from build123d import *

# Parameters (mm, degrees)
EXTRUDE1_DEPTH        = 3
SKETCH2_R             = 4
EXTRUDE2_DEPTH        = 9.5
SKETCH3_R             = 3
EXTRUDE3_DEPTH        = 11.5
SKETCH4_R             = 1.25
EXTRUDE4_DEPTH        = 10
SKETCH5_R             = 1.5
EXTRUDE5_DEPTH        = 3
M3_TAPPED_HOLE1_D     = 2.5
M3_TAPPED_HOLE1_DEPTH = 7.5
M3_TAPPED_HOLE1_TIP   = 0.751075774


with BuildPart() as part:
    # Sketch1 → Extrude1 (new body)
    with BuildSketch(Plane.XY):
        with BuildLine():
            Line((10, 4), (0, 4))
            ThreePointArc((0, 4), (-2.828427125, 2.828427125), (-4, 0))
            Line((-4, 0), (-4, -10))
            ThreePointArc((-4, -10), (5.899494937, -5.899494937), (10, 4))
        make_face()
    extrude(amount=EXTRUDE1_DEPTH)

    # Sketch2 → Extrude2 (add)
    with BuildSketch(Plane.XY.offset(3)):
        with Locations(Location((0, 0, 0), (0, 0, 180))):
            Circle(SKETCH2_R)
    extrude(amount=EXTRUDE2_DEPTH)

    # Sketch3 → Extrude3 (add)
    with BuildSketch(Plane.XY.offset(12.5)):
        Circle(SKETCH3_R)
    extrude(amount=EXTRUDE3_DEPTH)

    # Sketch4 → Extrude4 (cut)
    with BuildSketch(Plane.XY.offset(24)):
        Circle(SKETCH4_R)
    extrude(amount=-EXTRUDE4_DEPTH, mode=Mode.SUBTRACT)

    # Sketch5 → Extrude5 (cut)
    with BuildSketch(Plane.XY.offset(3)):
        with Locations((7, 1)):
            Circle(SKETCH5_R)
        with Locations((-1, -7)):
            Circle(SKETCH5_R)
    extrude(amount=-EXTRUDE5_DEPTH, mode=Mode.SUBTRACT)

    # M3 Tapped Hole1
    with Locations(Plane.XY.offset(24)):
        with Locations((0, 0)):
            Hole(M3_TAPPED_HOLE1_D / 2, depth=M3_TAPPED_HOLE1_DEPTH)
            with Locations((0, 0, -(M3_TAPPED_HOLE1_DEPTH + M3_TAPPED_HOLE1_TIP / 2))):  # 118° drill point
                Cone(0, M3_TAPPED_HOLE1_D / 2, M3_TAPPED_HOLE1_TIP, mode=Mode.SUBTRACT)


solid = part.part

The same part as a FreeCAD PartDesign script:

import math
import FreeCAD as App
import Part
import Sketcher
from FreeCAD import Vector

doc = App.newDocument("Part")
body = doc.addObject("PartDesign::Body", "Body")

sketch1 = doc.addObject("Sketcher::SketchObject", "Sketch")
body.addObject(sketch1)
sketch1.AttachmentSupport = (doc.XY_Plane, [""])
sketch1.MapMode = "FlatFace"
sketch1.addGeometry([
    Part.LineSegment(Vector(10, 4, 0), Vector(0, 4, 0)),
    Part.ArcOfCircle(Part.Circle(Vector(0, 0, 0), Vector(0, 0, 1), 4), math.radians(90), math.radians(180)),
    Part.LineSegment(Vector(-4, 0, 0), Vector(-4, -10, 0)),
    Part.ArcOfCircle(Part.Circle(Vector(-4, 4, 0), Vector(0, 0, 1), 14), math.radians(-90), math.radians(0)),
], False)
sketch1.addConstraint([
    Sketcher.Constraint("Tangent", 0, 2, 1, 1),
    Sketcher.Constraint("Tangent", 1, 2, 2, 1),
    Sketcher.Constraint("Coincident", 2, 2, 3, 1),
    Sketcher.Constraint("Coincident", 3, 2, 0, 1),
    Sketcher.Constraint("Horizontal", 0),
    Sketcher.Constraint("Vertical", 2),
    Sketcher.Constraint("Coincident", 1, 3, -1, 1),
    Sketcher.Constraint("Horizontal", 3, 3, 0, 2),
    Sketcher.Constraint("Vertical", 3, 3, 1, 2),
    Sketcher.Constraint("Radius", 1, 4.0),
    Sketcher.Constraint("Radius", 3, 14.0),
])
pad1 = doc.addObject("PartDesign::Pad", "Pad")
body.addObject(pad1)
pad1.Profile = sketch1
pad1.Length = 3

sketch2 = doc.addObject("Sketcher::SketchObject", "Sketch001")
body.addObject(sketch2)
sketch2.AttachmentSupport = (doc.XY_Plane, [""])
sketch2.MapMode = "FlatFace"
sketch2.AttachmentOffset = App.Placement(Vector(0, 0, 3), App.Rotation())
sketch2.addGeometry(Part.Circle(Vector(0, 0, 0), Vector(0, 0, 1), 4), False)
sketch2.addConstraint([
    Sketcher.Constraint("Coincident", 0, 3, -1, 1),
    Sketcher.Constraint("Diameter", 0, 8.0),
])
pad2 = doc.addObject("PartDesign::Pad", "Pad001")
body.addObject(pad2)
pad2.Profile = sketch2
pad2.Length = 9.5

sketch3 = doc.addObject("Sketcher::SketchObject", "Sketch002")
body.addObject(sketch3)
sketch3.AttachmentSupport = (doc.XY_Plane, [""])
sketch3.MapMode = "FlatFace"
sketch3.AttachmentOffset = App.Placement(Vector(0, 0, 12.5), App.Rotation())
sketch3.addGeometry(Part.Circle(Vector(0, 0, 0), Vector(0, 0, 1), 3), False)
sketch3.addConstraint([
    Sketcher.Constraint("Coincident", 0, 3, -1, 1),
    Sketcher.Constraint("Diameter", 0, 6.0),
])
pad3 = doc.addObject("PartDesign::Pad", "Pad002")
body.addObject(pad3)
pad3.Profile = sketch3
pad3.Length = 11.5

sketch4 = doc.addObject("Sketcher::SketchObject", "Sketch003")
body.addObject(sketch4)
sketch4.AttachmentSupport = (doc.XY_Plane, [""])
sketch4.MapMode = "FlatFace"
sketch4.AttachmentOffset = App.Placement(Vector(0, 0, 24), App.Rotation())
sketch4.addGeometry(Part.Circle(Vector(0, 0, 0), Vector(0, 0, 1), 1.2), False)
sketch4.addConstraint([
    Sketcher.Constraint("Coincident", 0, 3, -1, 1),
    Sketcher.Constraint("Diameter", 0, 2.5),
])
pocket1 = doc.addObject("PartDesign::Pocket", "Pocket")
body.addObject(pocket1)
pocket1.Profile = sketch4
pocket1.Length = 10

sketch5 = doc.addObject("Sketcher::SketchObject", "Sketch004")
body.addObject(sketch5)
sketch5.AttachmentSupport = (doc.XY_Plane, [""])
sketch5.MapMode = "FlatFace"
sketch5.AttachmentOffset = App.Placement(Vector(0, 0, 3), App.Rotation())
sketch5.addGeometry([
    Part.Circle(Vector(7, 1, 0), Vector(0, 0, 1), 1.5),
    Part.Circle(Vector(-1, -7, 0), Vector(0, 0, 1), 1.5),
], False)
sketch5.addConstraint([
    Sketcher.Constraint("Equal", 0, 1),
    Sketcher.Constraint("Diameter", 0, 3.0),
    Sketcher.Constraint("DistanceX", -1, 1, 0, 3, 7.0),
    Sketcher.Constraint("DistanceY", -1, 1, 0, 3, 1.0),
    Sketcher.Constraint("DistanceX", 1, 3, -1, 1, 1.0),
    Sketcher.Constraint("DistanceY", 1, 3, -1, 1, 7.0),
])
pocket2 = doc.addObject("PartDesign::Pocket", "Pocket001")
body.addObject(pocket2)
pocket2.Profile = sketch5
pocket2.Length = 3

sketch6 = doc.addObject("Sketcher::SketchObject", "Sketch005")
body.addObject(sketch6)
sketch6.AttachmentSupport = (doc.XY_Plane, [""])
sketch6.MapMode = "FlatFace"
sketch6.AttachmentOffset = App.Placement(Vector(0, 0, 24), App.Rotation())
sketch6.addGeometry(Part.Circle(Vector(0, 0, 0), Vector(0, 0, 1), 1.2), False)
sketch6.addConstraint([
    Sketcher.Constraint("Coincident", 0, 3, -1, 1),
    Sketcher.Constraint("Diameter", 0, 2.5),
])
doc.recompute()
hole = doc.addObject("PartDesign::Hole", "Hole")
body.addObject(hole)
hole.Profile = sketch6
hole.ThreadType = "None"
hole.Diameter = 2.5
hole.DepthType = "Dimension"
hole.Depth = 7.5
hole.DrillPoint = "Angled"
hole.DrillPointAngle = 118

doc.recompute()
